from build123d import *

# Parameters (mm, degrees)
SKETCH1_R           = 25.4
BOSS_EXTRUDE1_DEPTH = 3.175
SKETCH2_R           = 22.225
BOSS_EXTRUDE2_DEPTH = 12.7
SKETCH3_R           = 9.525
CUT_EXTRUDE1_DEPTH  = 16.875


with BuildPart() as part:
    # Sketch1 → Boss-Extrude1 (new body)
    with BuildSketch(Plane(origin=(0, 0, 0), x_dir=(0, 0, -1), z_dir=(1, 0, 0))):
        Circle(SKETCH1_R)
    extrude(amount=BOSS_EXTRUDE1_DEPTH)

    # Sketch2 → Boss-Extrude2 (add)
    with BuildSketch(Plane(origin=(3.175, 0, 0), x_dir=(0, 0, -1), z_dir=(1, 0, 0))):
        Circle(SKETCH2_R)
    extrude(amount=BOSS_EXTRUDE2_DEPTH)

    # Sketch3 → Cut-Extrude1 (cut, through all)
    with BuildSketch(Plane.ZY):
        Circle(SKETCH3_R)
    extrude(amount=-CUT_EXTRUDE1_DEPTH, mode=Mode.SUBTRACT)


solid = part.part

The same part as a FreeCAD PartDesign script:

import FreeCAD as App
import Part
import Sketcher

V = App.Vector
Q = App.Units.Quantity

doc = App.newDocument("Part")
body = doc.addObject("PartDesign::Body", "Body")

sketch1 = doc.addObject("Sketcher::SketchObject", "Sketch")
body.addObject(sketch1)
sketch1.AttachmentSupport = (doc.YZ_Plane, [""])
sketch1.MapMode = "FlatFace"
sketch1.addGeometry(Part.Circle(V(0, 0, 0), V(0, 0, 1), 25), False)
sketch1.addConstraint(Sketcher.Constraint("Coincident", 0, 3, -1, 1))
sketch1.addConstraint(Sketcher.Constraint("Diameter", 0, Q("2 in")))
pad1 = doc.addObject("PartDesign::Pad", "Pad")
body.addObject(pad1)
pad1.Profile = sketch1
pad1.Length = Q("0.125 in")

sketch2 = doc.addObject("Sketcher::SketchObject", "Sketch001")
body.addObject(sketch2)
sketch2.AttachmentSupport = (doc.YZ_Plane, [""])
sketch2.MapMode = "FlatFace"
sketch2.AttachmentOffset = App.Placement(V(0, 0, 0.125 * 25.4), App.Rotation())
sketch2.addGeometry(Part.Circle(V(0, 0, 0), V(0, 0, 1), 22), False)
sketch2.addConstraint(Sketcher.Constraint("Coincident", 0, 3, -1, 1))
sketch2.addConstraint(Sketcher.Constraint("Diameter", 0, Q("1.75 in")))
pad2 = doc.addObject("PartDesign::Pad", "Pad001")
body.addObject(pad2)
pad2.Profile = sketch2
pad2.Length = Q("0.5 in")

sketch3 = doc.addObject("Sketcher::SketchObject", "Sketch002")
body.addObject(sketch3)
sketch3.AttachmentSupport = (doc.YZ_Plane, [""])
sketch3.MapMode = "FlatFace"
sketch3.addGeometry(Part.Circle(V(0, 0, 0), V(0, 0, 1), 10), False)
sketch3.addConstraint(Sketcher.Constraint("Coincident", 0, 3, -1, 1))
sketch3.addConstraint(Sketcher.Constraint("Diameter", 0, Q("0.75 in")))
pocket1 = doc.addObject("PartDesign::Pocket", "Pocket")
body.addObject(pocket1)
pocket1.Profile = sketch3
pocket1.Type = "ThroughAll"
pocket1.Reversed = True

doc.recompute()
